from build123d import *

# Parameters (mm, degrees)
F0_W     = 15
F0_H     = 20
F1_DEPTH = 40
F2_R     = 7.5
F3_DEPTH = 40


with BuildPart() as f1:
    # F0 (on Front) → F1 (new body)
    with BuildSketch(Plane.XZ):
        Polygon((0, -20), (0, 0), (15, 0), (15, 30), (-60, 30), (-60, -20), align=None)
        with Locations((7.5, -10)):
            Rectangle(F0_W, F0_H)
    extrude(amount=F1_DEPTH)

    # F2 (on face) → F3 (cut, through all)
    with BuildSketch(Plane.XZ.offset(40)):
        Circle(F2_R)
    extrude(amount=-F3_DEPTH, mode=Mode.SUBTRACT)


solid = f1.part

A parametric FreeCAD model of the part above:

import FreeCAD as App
import Part
import Sketcher

V = App.Vector

doc = App.newDocument("Part")
body = doc.addObject("PartDesign::Body", "Body")

# Sketch on XZ plane
sketch1 = doc.addObject("Sketcher::SketchObject", "Sketch")
body.addObject(sketch1)
sketch1.AttachmentSupport = (doc.XZ_Plane, [""])
sketch1.MapMode = "FlatFace"
sketch1.addGeometry([
    Part.LineSegment(V(15, 30, 0), V(-60, 30, 0)),
    Part.LineSegment(V(-60, 30, 0), V(-60, -20, 0)),
    Part.LineSegment(V(-60, -20, 0), V(15, -20, 0)),
    Part.LineSegment(V(15, -20, 0), V(15, 30, 0)),
], False)
sketch1.addConstraint([
    Sketcher.Constraint("Coincident", 0, 2, 1, 1),
    Sketcher.Constraint("Coincident", 1, 2, 2, 1),
    Sketcher.Constraint("Coincident", 2, 2, 3, 1),
    Sketcher.Constraint("Coincident", 3, 2, 0, 1),
    Sketcher.Constraint("Horizontal", 0),
    Sketcher.Constraint("Vertical", 1),
    Sketcher.Constraint("Horizontal", 2),
    Sketcher.Constraint("Vertical", 3),
    Sketcher.Constraint("DistanceX", 0, 2, 0, 1, 75.0),
    Sketcher.Constraint("DistanceY", 1, 2, 1, 1, 50.0),
    Sketcher.Constraint("DistanceX", 0, 2, -1, 1, 60.0),
    Sketcher.Constraint("DistanceY", -1, 1, 0, 2, 30.0),
])
pad1 = doc.addObject("PartDesign::Pad", "Pad")
body.addObject(pad1)
pad1.Profile = sketch1
pad1.Length = 40

# Sketch on XZ plane
sketch2 = doc.addObject("Sketcher::SketchObject", "Sketch001")
body.addObject(sketch2)
sketch2.AttachmentSupport = (doc.XZ_Plane, [""])
sketch2.MapMode = "FlatFace"
sketch2.AttachmentOffset = App.Placement(V(0, 0, 40), App.Rotation())
sketch2.addGeometry(Part.Circle(V(0, 0, 0), V(0, 0, 1), 8), False)
sketch2.addConstraint([
    Sketcher.Constraint("Coincident", 0, 3, -1, 1),
    Sketcher.Constraint("Diameter", 0, 15.0),
])
pocket1 = doc.addObject("PartDesign::Pocket", "Pocket")
body.addObject(pocket1)
pocket1.Profile = sketch2
pocket1.Type = "ThroughAll"

doc.recompute()
